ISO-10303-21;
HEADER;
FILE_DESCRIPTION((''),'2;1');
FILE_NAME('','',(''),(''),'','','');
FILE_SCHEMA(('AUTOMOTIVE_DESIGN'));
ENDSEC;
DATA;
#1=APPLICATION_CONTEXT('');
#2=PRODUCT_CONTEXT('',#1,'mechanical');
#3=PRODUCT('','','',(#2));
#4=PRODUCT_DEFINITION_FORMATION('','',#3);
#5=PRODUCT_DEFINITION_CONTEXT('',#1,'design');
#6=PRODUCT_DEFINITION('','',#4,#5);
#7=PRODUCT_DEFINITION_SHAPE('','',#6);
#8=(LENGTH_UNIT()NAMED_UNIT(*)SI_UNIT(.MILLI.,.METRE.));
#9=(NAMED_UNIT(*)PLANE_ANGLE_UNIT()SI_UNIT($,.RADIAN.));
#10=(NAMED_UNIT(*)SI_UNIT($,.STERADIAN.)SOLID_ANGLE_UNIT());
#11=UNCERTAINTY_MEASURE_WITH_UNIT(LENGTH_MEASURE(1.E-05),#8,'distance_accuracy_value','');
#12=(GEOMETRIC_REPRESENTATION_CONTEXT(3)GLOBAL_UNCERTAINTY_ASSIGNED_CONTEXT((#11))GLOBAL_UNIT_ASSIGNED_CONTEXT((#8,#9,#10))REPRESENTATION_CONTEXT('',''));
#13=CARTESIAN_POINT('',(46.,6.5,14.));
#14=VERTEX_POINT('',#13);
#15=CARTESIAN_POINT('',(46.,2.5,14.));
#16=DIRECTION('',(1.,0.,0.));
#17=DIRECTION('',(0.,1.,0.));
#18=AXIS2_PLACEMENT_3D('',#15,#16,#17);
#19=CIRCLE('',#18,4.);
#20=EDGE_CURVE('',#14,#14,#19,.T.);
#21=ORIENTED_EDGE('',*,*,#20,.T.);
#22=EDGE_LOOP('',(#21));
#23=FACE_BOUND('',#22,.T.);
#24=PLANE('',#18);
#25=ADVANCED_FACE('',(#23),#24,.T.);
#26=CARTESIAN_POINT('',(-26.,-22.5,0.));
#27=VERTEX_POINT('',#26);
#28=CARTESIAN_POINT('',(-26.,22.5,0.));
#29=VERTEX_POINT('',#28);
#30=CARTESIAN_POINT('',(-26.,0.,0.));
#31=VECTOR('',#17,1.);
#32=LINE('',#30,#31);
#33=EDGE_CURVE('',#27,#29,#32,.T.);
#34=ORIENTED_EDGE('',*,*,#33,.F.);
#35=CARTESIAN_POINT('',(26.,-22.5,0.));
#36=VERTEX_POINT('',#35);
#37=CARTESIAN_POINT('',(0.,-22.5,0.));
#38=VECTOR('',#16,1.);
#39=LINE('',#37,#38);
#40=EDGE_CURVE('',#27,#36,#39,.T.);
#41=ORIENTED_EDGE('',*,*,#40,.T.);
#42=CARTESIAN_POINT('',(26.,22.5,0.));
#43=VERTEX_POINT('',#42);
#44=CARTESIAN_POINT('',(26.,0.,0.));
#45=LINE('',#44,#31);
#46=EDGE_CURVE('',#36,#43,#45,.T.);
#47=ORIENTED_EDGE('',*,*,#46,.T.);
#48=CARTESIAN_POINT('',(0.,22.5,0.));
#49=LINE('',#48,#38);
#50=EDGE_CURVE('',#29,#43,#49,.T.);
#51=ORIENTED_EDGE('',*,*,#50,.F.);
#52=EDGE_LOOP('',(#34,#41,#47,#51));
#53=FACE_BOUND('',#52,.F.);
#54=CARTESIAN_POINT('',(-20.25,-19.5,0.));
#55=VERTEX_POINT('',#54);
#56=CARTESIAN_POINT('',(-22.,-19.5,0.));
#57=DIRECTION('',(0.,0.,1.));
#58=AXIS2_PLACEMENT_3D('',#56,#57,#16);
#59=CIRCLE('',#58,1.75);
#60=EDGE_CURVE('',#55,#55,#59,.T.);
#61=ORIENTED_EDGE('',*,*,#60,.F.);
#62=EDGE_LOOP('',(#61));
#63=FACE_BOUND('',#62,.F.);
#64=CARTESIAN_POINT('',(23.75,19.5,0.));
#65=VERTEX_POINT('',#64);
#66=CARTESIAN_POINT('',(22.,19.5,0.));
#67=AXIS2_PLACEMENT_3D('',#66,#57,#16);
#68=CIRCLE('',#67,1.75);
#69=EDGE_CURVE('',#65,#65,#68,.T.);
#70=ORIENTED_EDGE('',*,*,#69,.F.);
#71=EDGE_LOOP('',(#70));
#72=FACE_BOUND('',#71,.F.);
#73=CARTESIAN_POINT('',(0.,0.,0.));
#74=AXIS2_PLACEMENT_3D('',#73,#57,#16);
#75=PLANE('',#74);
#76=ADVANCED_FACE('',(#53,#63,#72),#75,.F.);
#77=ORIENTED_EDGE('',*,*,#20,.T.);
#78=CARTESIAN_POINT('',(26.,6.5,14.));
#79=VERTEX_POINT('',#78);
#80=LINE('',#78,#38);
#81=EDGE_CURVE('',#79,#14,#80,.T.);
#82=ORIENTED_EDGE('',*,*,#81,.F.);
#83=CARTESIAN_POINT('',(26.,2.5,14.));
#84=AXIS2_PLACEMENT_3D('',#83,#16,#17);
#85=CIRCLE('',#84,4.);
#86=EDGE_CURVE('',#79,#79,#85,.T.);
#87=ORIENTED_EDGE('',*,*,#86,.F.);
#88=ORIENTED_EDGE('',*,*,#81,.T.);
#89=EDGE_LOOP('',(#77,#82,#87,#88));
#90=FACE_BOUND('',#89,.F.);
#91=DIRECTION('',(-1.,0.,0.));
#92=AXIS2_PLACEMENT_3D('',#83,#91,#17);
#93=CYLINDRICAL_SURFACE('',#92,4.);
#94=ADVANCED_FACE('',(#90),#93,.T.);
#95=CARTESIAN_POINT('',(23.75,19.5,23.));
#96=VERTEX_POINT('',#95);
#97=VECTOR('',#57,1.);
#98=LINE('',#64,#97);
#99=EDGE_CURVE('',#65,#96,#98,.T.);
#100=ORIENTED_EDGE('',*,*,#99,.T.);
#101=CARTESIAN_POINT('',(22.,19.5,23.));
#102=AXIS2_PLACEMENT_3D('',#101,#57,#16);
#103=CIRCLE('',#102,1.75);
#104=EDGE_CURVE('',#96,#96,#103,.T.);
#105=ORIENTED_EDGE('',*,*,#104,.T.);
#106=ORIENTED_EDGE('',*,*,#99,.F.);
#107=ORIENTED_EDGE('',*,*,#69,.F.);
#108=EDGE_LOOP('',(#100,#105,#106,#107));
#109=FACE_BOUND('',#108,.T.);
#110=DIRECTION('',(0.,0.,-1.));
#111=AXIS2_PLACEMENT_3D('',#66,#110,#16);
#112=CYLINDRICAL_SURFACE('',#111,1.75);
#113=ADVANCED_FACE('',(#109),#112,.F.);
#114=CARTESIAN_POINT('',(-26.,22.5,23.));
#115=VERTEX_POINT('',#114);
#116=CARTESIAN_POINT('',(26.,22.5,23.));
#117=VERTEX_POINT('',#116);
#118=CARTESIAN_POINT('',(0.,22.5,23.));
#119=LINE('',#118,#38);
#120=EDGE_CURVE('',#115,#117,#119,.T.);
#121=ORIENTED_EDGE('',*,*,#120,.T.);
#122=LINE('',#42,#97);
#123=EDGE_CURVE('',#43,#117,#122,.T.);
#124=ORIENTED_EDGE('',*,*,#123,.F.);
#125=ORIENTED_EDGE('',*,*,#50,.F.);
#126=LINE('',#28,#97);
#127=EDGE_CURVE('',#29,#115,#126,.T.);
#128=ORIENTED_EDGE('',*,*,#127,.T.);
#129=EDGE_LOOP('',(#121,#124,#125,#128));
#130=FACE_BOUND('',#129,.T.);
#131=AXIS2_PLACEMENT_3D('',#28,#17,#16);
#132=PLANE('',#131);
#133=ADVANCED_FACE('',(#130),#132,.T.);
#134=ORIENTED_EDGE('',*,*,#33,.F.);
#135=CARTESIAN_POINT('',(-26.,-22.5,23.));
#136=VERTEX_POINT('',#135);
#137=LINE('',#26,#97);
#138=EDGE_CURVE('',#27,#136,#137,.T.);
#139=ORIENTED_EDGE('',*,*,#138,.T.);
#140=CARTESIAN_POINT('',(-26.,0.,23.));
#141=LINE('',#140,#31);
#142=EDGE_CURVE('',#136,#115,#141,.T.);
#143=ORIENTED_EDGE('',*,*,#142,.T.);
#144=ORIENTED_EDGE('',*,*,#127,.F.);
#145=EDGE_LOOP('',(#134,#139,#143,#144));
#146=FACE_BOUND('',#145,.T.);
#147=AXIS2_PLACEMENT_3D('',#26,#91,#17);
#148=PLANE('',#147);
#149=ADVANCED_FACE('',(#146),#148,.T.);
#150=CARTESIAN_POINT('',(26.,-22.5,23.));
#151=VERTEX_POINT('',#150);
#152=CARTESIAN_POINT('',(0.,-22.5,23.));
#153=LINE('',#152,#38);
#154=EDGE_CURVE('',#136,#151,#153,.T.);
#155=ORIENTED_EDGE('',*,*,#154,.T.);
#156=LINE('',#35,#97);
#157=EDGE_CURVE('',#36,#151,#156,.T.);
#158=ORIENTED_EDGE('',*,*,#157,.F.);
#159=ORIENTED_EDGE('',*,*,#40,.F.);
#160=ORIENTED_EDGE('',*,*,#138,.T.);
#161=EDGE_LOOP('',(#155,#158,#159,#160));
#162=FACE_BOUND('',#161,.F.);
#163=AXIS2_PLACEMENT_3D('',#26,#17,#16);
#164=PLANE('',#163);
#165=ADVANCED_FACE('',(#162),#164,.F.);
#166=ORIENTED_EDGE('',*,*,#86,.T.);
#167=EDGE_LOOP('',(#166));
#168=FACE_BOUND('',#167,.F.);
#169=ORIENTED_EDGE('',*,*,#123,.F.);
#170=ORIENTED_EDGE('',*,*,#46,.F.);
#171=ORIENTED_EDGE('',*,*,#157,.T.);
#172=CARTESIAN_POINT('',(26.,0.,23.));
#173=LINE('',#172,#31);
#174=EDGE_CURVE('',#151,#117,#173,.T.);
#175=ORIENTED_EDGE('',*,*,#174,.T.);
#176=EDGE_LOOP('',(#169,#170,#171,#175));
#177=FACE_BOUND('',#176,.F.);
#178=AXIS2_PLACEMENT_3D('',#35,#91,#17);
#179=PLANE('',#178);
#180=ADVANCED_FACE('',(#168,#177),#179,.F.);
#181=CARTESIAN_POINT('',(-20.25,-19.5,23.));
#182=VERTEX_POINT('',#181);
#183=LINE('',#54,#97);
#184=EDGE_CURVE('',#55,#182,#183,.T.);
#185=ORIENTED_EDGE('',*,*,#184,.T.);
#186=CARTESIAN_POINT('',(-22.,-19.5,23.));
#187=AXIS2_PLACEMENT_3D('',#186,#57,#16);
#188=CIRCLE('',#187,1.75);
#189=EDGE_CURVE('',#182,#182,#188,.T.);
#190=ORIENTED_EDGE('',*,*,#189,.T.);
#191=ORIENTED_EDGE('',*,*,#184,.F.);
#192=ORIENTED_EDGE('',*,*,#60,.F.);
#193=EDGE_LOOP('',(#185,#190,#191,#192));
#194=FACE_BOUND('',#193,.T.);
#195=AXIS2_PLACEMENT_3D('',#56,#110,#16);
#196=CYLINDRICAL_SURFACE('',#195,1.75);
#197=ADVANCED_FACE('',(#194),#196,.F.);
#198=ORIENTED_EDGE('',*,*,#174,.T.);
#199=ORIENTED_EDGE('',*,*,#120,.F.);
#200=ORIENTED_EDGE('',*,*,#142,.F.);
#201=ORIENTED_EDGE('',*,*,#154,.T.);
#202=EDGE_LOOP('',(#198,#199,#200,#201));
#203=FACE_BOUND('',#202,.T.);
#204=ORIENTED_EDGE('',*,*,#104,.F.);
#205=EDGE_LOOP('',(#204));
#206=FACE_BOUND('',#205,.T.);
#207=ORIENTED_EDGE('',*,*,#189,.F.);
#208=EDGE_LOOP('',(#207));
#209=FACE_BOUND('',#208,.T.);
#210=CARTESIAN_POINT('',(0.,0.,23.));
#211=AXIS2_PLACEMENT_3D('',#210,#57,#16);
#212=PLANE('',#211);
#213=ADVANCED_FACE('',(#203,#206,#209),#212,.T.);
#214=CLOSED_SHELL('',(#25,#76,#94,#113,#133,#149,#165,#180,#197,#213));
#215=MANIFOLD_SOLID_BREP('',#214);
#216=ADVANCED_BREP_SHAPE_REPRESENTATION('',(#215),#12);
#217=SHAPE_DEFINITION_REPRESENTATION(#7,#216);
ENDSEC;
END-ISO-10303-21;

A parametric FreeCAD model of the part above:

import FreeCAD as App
import Part
import Sketcher

V = App.Vector
Q = App.Units.Quantity


def add_polygon(sketch, points):
    """Adds a closed chain of lines whose ends are joined by coincident constraints."""
    first, n = sketch.GeometryCount, len(points)
    for a, b in zip(points, points[1:] + points[:1]):
        sketch.addGeometry(Part.LineSegment(App.Vector(*a, 0), App.Vector(*b, 0)), False)
    for i in range(n):
        sketch.addConstraint(Sketcher.Constraint("Coincident", first + i, 2, first + (i + 1) % n, 1))

doc = App.newDocument("Part")
body = doc.addObject("PartDesign::Body", "Body")

sketch1 = body.newObject("Sketcher::SketchObject", "Sketch")
sketch1.AttachmentSupport = (doc.getObject("XY_Plane"), [""])
sketch1.MapMode = "FlatFace"
add_polygon(sketch1, [(-26, 22.5), (-26, -22.5), (26, -22.5), (26, 22.5)])
sketch1.addGeometry(Part.Circle(V(-22, -19.5, 0), V(0, 0, 1), 1.75), False)
sketch1.addGeometry(Part.Circle(V(22, 19.5, 0), V(0, 0, 1), 1.75), False)
sketch1.addConstraint([
    Sketcher.Constraint("Vertical", 0),
    Sketcher.Constraint("Horizontal", 1),
    Sketcher.Constraint("Vertical", 2),
    Sketcher.Constraint("Horizontal", 3),
    Sketcher.Constraint("Equal", 4, 5),
    Sketcher.Constraint("Symmetric", 4, 3, 5, 3, -1, 1),
    Sketcher.Constraint("Symmetric", 0, 2, 2, 2, -1, 1),
    Sketcher.Constraint("Diameter", 4, Q("3.5 mm")),
    Sketcher.Constraint("DistanceX", 1, 1, 1, 2, Q("52 mm")),
    Sketcher.Constraint("DistanceY", 0, 2, 0, 1, Q("45 mm")),
    Sketcher.Constraint("DistanceX", 4, 3, -1, 1, Q("22 mm")),
    Sketcher.Constraint("DistanceY", 4, 3, 5, 3, Q("39 mm")),
])
pad1 = body.newObject("PartDesign::Pad", "Pad")
pad1.Profile = sketch1
pad1.Length = 23

sketch2 = body.newObject("Sketcher::SketchObject", "Sketch001")
sketch2.AttachmentSupport = (doc.getObject("YZ_Plane"), [""])
sketch2.MapMode = "FlatFace"
sketch2.AttachmentOffset = App.Placement(V(0, 0, 26), App.Rotation())
sketch2.addGeometry(Part.Circle(V(2.5, 14, 0), V(0, 0, 1), 4), False)
sketch2.addConstraint([
    Sketcher.Constraint("Diameter", 0, Q("8 mm")),
    Sketcher.Constraint("DistanceY", -1, 1, 0, 3, Q("14 mm")),
    Sketcher.Constraint("DistanceX", -1, 1, 0, 3, Q("2.5 mm")),
])
pad2 = body.newObject("PartDesign::Pad", "Pad001")
pad2.Profile = sketch2
pad2.Length = 20

doc.recompute()
